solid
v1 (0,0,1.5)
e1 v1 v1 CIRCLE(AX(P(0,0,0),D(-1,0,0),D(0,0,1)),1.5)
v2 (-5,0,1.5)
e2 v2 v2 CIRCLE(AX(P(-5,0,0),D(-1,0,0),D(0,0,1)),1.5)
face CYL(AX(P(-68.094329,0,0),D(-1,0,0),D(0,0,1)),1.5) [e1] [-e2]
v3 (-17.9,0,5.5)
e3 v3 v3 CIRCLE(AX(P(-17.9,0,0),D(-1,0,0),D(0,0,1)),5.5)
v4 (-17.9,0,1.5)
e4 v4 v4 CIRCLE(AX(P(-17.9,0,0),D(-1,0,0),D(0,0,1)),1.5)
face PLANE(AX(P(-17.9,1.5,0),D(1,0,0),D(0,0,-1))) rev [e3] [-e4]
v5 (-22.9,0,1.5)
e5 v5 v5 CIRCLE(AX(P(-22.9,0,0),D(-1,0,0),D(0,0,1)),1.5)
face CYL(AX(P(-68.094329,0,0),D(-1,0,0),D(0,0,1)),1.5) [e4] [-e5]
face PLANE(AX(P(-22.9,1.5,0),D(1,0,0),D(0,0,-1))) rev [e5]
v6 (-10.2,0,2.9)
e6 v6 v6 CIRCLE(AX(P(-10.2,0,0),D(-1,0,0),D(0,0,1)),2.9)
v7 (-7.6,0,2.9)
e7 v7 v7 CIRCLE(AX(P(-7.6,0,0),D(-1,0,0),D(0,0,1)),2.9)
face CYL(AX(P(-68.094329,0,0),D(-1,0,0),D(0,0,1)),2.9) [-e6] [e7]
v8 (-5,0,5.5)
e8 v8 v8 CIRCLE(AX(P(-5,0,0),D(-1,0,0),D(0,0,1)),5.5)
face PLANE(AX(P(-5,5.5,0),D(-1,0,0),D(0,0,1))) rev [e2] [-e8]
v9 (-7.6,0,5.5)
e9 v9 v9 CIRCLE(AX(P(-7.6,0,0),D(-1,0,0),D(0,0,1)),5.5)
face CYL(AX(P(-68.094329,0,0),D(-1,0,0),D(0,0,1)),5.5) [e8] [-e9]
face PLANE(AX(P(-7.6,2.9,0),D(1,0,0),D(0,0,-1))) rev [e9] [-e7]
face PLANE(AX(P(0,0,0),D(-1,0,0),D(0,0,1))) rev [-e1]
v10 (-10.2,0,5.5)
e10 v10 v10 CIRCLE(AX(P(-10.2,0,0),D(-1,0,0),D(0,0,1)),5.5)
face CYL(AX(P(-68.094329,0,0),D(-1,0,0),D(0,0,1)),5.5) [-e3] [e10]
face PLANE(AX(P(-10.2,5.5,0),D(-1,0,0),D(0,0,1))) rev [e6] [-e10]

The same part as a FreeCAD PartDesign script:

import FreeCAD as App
import Part
import Sketcher

V = App.Vector
Q = App.Units.Quantity

doc = App.newDocument("Part")
body = doc.addObject("PartDesign::Body", "Body")

# Sketch on XY plane
sketch1 = body.newObject("Sketcher::SketchObject", "Sketch")
sketch1.AttachmentSupport = (doc.getObject("XY_Plane"), [""])
sketch1.MapMode = "FlatFace"
sketch1.addGeometry([
    Part.LineSegment(V(-17.9, 1.5, 0), V(-22.9, 1.5, 0)),  # 0
    Part.LineSegment(V(-22.9, 1.5, 0), V(-22.9, 0, 0)),  # 1
    Part.LineSegment(V(-22.9, 0, 0), V(0, 0, 0)),  # 2
    Part.LineSegment(V(0, 0, 0), V(0, 1.5, 0)),  # 3
    Part.LineSegment(V(0, 1.5, 0), V(-5, 1.5, 0)),  # 4
    Part.LineSegment(V(-5, 1.5, 0), V(-5, 5.5, 0)),  # 5
    Part.LineSegment(V(-5, 5.5, 0), V(-7.6, 5.5, 0)),  # 6
    Part.LineSegment(V(-7.6, 5.5, 0), V(-7.6, 2.9, 0)),  # 7
    Part.LineSegment(V(-7.6, 2.9, 0), V(-10.2, 2.9, 0)),  # 8
    Part.LineSegment(V(-10.2, 2.9, 0), V(-10.2, 5.5, 0)),  # 9
    Part.LineSegment(V(-10.2, 5.5, 0), V(-17.9, 5.5, 0)),  # 10
    Part.LineSegment(V(-17.9, 5.5, 0), V(-17.9, 1.5, 0)),  # 11
], False)
sketch1.addConstraint([
    Sketcher.Constraint("Coincident", 0, 2, 1, 1),
    Sketcher.Constraint("Coincident", 1, 2, 2, 1),
    Sketcher.Constraint("Coincident", 2, 2, 3, 1),
    Sketcher.Constraint("Coincident", 3, 2, 4, 1),
    Sketcher.Constraint("Coincident", 4, 2, 5, 1),
    Sketcher.Constraint("Coincident", 5, 2, 6, 1),
    Sketcher.Constraint("Coincident", 6, 2, 7, 1),
    Sketcher.Constraint("Coincident", 7, 2, 8, 1),
    Sketcher.Constraint("Coincident", 8, 2, 9, 1),
    Sketcher.Constraint("Coincident", 9, 2, 10, 1),
    Sketcher.Constraint("Coincident", 10, 2, 11, 1),
    Sketcher.Constraint("Coincident", 11, 2, 0, 1),
    Sketcher.Constraint("Horizontal", 0),
    Sketcher.Constraint("Vertical", 1),
    Sketcher.Constraint("Horizontal", 2),
    Sketcher.Constraint("Vertical", 3),
    Sketcher.Constraint("Horizontal", 4),
    Sketcher.Constraint("Vertical", 5),
    Sketcher.Constraint("Horizontal", 6),
    Sketcher.Constraint("Vertical", 7),
    Sketcher.Constraint("Horizontal", 8),
    Sketcher.Constraint("Vertical", 9),
    Sketcher.Constraint("Horizontal", 10),
    Sketcher.Constraint("Vertical", 11),
    Sketcher.Constraint("Coincident", 2, 2, -1, 1),
    Sketcher.Constraint("Horizontal", 0, 2, 3, 2),
    Sketcher.Constraint("Horizontal", 6, 2, 9, 2),
    Sketcher.Constraint("Equal", 0, 4),
    Sketcher.Constraint("Equal", 6, 8),
    Sketcher.Constraint("Equal", 8, 7),
    Sketcher.Constraint("DistanceX", 0, 2, 0, 1, Q("5 mm")),
    Sketcher.Constraint("DistanceY", 5, 1, 5, 2, Q("4 mm")),
    Sketcher.Constraint("DistanceX", 2, 1, 2, 2, Q("22.9 mm")),
    Sketcher.Constraint("DistanceX", 6, 2, 6, 1, Q("2.6 mm")),
    Sketcher.Constraint("DistanceY", 1, 2, 1, 1, Q("1.5 mm")),
])
revolution = body.newObject("PartDesign::Revolution", "Revolution")
revolution.Profile = sketch1
revolution.ReferenceAxis = (sketch1, ["H_Axis"])
revolution.Angle = 360

doc.recompute()
